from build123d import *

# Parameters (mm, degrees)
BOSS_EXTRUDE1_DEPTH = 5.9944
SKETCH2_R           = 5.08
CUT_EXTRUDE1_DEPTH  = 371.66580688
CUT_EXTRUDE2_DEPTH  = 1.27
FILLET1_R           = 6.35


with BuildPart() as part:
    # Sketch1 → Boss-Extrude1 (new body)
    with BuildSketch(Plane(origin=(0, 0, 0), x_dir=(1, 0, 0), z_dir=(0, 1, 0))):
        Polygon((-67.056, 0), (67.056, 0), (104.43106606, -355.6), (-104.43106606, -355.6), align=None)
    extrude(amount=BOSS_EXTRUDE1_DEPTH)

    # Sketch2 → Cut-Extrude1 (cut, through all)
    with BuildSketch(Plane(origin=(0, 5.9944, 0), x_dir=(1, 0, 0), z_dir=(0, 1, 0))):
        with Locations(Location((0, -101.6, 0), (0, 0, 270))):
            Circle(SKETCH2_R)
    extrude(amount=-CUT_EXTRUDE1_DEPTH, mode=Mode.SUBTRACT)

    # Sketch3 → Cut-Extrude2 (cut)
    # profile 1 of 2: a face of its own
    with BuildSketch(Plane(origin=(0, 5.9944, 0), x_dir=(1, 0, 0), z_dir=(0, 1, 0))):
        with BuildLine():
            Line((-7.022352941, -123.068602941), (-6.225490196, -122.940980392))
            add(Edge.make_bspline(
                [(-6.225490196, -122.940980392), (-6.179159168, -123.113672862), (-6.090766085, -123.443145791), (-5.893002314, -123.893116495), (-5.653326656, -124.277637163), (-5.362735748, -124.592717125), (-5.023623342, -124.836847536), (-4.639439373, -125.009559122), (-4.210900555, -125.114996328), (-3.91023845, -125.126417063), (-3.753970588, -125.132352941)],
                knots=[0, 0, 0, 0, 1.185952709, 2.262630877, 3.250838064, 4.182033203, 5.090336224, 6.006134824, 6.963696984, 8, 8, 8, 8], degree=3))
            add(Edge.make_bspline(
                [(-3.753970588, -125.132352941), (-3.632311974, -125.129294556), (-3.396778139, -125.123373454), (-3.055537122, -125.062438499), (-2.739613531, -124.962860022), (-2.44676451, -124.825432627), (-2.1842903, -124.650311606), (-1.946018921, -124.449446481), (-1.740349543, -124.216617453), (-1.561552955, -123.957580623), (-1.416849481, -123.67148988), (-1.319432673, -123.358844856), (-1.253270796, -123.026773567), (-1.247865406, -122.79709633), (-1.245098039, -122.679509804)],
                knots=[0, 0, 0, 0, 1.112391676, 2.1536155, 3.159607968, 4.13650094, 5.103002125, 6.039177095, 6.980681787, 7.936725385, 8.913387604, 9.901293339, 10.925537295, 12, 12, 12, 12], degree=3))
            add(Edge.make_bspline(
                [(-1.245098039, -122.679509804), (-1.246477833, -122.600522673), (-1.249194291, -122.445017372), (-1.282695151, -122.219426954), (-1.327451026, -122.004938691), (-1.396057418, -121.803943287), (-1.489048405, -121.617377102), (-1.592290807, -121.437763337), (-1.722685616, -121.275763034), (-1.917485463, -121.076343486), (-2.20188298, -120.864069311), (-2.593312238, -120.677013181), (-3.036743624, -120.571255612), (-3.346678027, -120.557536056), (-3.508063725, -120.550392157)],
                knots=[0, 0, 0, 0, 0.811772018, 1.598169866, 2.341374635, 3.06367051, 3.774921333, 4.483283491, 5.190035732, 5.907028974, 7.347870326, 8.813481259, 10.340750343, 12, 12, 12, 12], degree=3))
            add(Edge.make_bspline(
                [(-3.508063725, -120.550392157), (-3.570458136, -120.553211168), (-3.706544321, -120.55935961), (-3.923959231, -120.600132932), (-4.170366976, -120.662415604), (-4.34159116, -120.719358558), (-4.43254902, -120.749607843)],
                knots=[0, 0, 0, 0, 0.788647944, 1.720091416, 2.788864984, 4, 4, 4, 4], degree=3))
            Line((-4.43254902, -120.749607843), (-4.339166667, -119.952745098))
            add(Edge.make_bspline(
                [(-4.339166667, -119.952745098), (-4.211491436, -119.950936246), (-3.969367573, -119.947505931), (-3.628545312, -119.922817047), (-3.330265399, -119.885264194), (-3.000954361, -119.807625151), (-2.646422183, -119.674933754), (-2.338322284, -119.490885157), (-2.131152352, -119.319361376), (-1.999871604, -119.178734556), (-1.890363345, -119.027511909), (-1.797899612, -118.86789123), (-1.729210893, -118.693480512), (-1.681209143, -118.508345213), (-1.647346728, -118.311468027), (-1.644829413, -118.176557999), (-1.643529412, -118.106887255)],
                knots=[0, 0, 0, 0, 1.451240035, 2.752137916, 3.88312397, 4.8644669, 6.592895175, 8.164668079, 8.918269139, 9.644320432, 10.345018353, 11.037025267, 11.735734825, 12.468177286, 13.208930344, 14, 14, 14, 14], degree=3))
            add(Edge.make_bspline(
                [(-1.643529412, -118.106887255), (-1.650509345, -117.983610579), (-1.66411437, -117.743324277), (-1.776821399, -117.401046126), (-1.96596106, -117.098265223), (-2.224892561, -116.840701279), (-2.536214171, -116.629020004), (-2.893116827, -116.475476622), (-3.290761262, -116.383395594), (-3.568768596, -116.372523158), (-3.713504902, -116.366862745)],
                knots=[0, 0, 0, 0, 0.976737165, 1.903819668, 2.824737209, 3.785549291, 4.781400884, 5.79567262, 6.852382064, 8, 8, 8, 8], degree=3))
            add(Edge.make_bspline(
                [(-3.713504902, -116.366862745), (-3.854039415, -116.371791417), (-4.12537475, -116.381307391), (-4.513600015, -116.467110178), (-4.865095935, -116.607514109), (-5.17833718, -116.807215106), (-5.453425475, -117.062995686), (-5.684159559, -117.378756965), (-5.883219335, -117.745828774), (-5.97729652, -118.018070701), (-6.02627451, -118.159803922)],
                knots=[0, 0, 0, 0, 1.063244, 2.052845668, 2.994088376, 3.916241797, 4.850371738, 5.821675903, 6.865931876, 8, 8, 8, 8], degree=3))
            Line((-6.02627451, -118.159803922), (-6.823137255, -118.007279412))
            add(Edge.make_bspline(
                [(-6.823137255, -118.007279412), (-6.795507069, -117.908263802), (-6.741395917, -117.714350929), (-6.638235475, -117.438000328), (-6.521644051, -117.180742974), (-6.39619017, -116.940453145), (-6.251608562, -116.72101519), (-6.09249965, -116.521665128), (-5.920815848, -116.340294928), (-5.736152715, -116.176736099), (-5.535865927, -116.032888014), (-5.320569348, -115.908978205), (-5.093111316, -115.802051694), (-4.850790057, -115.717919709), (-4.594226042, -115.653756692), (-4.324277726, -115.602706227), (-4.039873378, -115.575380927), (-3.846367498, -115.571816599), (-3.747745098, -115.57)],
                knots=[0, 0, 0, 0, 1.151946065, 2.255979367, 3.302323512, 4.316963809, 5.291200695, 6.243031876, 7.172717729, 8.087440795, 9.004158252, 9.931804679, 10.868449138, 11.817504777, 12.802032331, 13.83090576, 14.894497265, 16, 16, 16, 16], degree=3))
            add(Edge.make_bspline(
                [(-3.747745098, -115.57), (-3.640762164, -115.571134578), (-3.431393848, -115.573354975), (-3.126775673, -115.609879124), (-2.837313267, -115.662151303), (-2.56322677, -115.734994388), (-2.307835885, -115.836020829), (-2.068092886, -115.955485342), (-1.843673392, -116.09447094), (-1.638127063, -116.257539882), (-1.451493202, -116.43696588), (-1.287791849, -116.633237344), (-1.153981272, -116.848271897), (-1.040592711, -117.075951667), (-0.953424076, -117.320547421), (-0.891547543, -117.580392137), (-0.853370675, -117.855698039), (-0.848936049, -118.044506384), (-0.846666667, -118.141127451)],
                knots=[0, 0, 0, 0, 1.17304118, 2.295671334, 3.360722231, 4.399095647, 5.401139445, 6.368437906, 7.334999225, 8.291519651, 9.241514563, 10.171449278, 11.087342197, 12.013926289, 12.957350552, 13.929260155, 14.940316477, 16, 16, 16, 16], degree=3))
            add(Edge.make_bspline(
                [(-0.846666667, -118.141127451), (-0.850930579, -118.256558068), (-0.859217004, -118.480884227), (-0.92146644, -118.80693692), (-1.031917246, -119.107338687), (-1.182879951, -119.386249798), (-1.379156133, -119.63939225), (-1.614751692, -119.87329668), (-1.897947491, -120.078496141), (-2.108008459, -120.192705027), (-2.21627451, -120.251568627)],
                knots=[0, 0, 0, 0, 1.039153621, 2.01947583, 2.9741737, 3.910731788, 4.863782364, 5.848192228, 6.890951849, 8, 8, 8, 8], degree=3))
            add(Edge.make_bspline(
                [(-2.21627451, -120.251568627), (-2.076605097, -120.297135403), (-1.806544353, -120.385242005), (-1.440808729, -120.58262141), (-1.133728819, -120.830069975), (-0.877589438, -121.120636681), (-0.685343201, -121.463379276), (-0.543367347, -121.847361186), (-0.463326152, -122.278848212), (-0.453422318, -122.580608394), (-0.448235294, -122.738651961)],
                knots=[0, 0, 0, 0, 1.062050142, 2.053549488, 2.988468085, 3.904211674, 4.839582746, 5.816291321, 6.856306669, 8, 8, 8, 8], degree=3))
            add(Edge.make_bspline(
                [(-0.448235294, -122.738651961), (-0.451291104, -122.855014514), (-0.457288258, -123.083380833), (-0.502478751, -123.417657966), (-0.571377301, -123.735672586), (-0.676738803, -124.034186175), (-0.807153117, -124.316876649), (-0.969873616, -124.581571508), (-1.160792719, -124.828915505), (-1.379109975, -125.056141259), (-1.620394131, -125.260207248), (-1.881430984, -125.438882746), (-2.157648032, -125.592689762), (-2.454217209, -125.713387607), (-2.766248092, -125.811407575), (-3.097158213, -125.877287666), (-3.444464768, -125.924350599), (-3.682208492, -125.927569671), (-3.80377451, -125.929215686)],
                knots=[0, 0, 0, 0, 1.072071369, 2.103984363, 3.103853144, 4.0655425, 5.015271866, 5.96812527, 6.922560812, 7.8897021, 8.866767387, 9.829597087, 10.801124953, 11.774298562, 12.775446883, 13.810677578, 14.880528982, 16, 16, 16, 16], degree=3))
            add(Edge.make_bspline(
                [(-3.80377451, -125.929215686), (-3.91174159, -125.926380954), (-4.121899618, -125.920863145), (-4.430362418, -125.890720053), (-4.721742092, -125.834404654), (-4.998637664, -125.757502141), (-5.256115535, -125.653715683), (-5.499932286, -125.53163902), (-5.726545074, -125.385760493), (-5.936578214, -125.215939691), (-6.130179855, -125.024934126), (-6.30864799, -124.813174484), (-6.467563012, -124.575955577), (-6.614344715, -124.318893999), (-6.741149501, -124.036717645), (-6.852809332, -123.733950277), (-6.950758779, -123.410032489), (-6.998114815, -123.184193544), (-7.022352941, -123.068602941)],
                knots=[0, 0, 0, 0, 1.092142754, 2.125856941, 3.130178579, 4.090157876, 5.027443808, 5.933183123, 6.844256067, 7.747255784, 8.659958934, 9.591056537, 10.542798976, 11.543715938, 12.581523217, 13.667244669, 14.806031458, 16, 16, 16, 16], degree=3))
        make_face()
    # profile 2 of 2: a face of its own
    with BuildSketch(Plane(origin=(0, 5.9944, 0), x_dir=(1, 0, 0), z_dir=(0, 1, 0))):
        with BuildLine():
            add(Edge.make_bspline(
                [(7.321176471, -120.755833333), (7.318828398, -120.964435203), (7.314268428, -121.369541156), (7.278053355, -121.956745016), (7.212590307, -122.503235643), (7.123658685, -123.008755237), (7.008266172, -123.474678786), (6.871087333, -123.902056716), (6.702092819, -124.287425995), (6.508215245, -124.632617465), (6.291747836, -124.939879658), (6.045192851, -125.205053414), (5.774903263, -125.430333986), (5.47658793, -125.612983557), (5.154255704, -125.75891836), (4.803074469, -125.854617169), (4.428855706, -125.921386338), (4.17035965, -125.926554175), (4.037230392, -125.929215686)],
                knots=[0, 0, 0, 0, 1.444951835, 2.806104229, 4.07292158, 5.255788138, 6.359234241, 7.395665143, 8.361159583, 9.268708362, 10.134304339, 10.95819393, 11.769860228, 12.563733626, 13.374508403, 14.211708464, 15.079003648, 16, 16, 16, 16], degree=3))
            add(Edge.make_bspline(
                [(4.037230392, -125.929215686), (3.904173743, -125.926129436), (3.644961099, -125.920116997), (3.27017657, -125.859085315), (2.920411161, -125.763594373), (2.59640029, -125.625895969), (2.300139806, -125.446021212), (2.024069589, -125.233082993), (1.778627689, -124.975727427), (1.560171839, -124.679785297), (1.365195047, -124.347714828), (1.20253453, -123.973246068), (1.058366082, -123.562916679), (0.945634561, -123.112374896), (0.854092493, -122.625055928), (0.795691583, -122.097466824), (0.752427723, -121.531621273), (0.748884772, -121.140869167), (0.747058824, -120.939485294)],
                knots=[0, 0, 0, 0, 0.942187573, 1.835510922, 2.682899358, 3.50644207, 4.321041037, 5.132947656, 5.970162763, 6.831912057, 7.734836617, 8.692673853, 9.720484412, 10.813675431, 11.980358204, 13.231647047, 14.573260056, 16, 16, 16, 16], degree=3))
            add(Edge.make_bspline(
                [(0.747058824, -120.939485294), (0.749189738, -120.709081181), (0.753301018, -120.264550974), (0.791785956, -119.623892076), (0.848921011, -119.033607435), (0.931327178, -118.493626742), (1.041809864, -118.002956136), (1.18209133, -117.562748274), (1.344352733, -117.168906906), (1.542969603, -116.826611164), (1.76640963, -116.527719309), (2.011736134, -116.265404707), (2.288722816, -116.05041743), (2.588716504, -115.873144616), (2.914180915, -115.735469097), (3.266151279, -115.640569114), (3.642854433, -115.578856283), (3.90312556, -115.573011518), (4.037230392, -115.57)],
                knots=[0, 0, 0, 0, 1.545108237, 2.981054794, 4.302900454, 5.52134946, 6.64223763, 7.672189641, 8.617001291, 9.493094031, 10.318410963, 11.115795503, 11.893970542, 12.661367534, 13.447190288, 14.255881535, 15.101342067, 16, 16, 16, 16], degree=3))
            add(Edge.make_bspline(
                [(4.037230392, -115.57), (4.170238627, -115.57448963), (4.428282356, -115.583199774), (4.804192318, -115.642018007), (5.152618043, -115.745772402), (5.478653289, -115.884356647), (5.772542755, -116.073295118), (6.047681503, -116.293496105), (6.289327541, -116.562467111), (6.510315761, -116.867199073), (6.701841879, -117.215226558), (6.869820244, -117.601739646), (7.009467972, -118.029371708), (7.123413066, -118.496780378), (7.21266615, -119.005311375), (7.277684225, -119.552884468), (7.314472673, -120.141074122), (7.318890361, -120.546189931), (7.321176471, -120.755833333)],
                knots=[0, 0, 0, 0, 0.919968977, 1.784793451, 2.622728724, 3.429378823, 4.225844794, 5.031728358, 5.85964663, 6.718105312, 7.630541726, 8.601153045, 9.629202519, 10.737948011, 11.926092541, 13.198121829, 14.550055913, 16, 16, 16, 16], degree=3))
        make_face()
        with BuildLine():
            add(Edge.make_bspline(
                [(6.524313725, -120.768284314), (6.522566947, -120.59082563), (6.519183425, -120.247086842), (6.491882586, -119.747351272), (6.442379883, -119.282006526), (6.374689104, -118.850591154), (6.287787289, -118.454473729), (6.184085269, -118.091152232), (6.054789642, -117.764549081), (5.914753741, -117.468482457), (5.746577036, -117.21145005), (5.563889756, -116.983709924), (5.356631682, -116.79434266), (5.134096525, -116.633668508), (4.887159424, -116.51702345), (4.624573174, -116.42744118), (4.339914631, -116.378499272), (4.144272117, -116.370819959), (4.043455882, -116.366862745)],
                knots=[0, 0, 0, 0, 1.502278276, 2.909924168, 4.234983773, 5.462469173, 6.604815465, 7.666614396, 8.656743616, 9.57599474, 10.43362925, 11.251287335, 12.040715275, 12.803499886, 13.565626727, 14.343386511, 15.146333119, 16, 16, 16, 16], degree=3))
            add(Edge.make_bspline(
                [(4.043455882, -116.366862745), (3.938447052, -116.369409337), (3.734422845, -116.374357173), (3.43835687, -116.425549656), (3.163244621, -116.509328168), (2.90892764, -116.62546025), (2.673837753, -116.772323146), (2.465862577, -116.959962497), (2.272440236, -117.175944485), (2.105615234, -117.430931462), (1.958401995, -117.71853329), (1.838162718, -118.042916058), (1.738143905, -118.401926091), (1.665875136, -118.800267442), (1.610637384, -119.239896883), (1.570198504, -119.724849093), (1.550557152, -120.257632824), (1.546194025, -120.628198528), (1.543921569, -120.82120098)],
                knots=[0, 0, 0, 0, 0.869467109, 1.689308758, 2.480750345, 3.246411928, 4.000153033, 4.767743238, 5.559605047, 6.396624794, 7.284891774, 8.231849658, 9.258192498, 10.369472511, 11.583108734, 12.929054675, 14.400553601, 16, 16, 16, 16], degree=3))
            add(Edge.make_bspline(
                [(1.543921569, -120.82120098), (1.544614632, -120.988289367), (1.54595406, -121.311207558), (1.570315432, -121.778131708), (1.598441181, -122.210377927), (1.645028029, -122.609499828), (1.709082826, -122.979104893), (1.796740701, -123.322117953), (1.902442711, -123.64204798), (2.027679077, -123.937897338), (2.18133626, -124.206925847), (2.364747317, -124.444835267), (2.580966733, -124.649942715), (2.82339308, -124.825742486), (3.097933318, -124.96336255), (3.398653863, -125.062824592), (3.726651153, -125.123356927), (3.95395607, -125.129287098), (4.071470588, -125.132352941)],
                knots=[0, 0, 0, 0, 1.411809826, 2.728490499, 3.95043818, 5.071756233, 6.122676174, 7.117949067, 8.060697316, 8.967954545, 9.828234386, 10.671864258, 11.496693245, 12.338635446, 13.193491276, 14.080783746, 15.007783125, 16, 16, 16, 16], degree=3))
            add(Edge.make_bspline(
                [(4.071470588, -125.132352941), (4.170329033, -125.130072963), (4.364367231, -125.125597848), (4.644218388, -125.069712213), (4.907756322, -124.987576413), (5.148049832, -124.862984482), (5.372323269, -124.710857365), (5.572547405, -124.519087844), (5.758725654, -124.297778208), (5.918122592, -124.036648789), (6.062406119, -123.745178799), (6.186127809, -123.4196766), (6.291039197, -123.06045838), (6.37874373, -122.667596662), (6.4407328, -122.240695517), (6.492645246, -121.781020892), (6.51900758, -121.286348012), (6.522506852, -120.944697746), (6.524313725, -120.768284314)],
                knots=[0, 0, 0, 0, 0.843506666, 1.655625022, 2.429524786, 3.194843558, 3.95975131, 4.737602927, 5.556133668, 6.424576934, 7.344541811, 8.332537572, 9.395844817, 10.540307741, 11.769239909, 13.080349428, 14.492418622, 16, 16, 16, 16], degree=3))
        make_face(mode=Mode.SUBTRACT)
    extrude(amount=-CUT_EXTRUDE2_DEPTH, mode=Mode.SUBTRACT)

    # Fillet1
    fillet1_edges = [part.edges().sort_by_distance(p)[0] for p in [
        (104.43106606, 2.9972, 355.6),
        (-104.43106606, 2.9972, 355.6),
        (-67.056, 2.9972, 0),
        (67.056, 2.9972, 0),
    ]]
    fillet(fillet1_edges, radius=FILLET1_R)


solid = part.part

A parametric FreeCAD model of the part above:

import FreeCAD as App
import Part
import Sketcher
from FreeCAD import Vector
Q = App.Units.Quantity


def edges_at(feature, points):
    """Names of the edges that pass closest to the given points."""
    edges = feature.Shape.Edges
    near = lambda p: min(range(len(edges)), key=lambda i: edges[i].distToShape(Part.Vertex(*p))[0])
    return sorted({f"Edge{near(p) + 1}" for p in points})

doc = App.newDocument("Part")
body = doc.addObject("PartDesign::Body", "Body")

# Sketch on XZ plane
sketch1 = body.newObject("Sketcher::SketchObject", "Sketch")
sketch1.AttachmentSupport = (doc.getObject("XZ_Plane"), [""])
sketch1.MapMode = "FlatFace"
sketch1.addGeometry(Part.LineSegment(Vector(67.056, 0, 0), Vector(-67.056, 0, 0)), False)
sketch1.addGeometry(Part.LineSegment(Vector(-67.056, 0, 0), Vector(-104.431066, 355.6, 0)), False)
sketch1.addGeometry(Part.LineSegment(Vector(-104.431066, 355.6, 0), Vector(104.431066, 355.6, 0)), False)
sketch1.addGeometry(Part.LineSegment(Vector(104.431066, 355.6, 0), Vector(67.056, 0, 0)), False)
sketch1.addConstraint(Sketcher.Constraint("Coincident", 0, 2, 1, 1))
sketch1.addConstraint(Sketcher.Constraint("Coincident", 1, 2, 2, 1))
sketch1.addConstraint(Sketcher.Constraint("Coincident", 2, 2, 3, 1))
sketch1.addConstraint(Sketcher.Constraint("Coincident", 3, 2, 0, 1))
sketch1.addConstraint(Sketcher.Constraint("Horizontal", 0))
sketch1.addConstraint(Sketcher.Constraint("Horizontal", 2))
sketch1.addConstraint(Sketcher.Constraint("Symmetric", 0, 2, 3, 2, -1, 1))
sketch1.addConstraint(Sketcher.Constraint("Equal", 1, 3))
sketch1.addConstraint(Sketcher.Constraint("DistanceY", -1, 1, 1, 2, Q("14 in")))
sketch1.addConstraint(Sketcher.Constraint("Angle", 1, Q("96 deg")))
sketch1.addConstraint(Sketcher.Constraint("DistanceX", 0, 2, 0, 1, Q("5.28 in")))
pad1 = body.newObject("PartDesign::Pad", "Pad")
pad1.Profile = sketch1
pad1.Length = Q("0.236 in")
pad1.Reversed = True

# Sketch on XZ plane
sketch2 = body.newObject("Sketcher::SketchObject", "Sketch001")
sketch2.AttachmentSupport = (doc.getObject("XZ_Plane"), [""])
sketch2.MapMode = "FlatFace"
sketch2.AttachmentOffset = App.Placement(Vector(0, 0, -0.236 * 25.4), App.Rotation())
sketch2.addGeometry(Part.Circle(Vector(0, 101.6, 0), Vector(0, 0, 1), 5.08), False)
sketch2.addConstraint(Sketcher.Constraint("PointOnObject", 0, 3, -2))
sketch2.addConstraint(Sketcher.Constraint("Diameter", 0, Q("0.4 in")))
sketch2.addConstraint(Sketcher.Constraint("DistanceY", -1, 1, 0, 3, Q("4 in")))
pocket1 = body.newObject("PartDesign::Pocket", "Pocket")
pocket1.Profile = sketch2
pocket1.Type = "ThroughAll"
pocket1.Reversed = True

# Sketch on XZ plane
sketch3 = body.newObject("Sketcher::SketchObject", "Sketch002")
sketch3.AttachmentSupport = (doc.getObject("XZ_Plane"), [""])
sketch3.MapMode = "FlatFace"
sketch3.AttachmentOffset = App.Placement(Vector(0, 0, -0.236 * 25.4), App.Rotation())
sketch3.addGeometry(Part.LineSegment(Vector(-6.22549, 122.94098, 0), Vector(-7.022353, 123.068603, 0)), False)
sketch3.addGeometry(Part.BSplineCurve([Vector(-3.803775, 125.929216, 0), Vector(-3.911742, 125.926381, 0), Vector(-4.1219, 125.920863, 0), Vector(-4.430362, 125.89072, 0), Vector(-4.721742, 125.834405, 0), Vector(-4.998638, 125.757502, 0), Vector(-5.256116, 125.653716, 0), Vector(-5.499932, 125.531639, 0), Vector(-5.726545, 125.38576, 0), Vector(-5.936578, 125.21594, 0), Vector(-6.13018, 125.024934, 0), Vector(-6.308648, 124.813174, 0), Vector(-6.467563, 124.575956, 0), Vector(-6.614345, 124.318894, 0), Vector(-6.74115, 124.036718, 0), Vector(-6.852809, 123.73395, 0), Vector(-6.950759, 123.410032, 0), Vector(-6.998115, 123.184194, 0), Vector(-7.022353, 123.068603, 0)], [4, 1, 1, 1, 1, 1, 1, 1, 1, 1, 1, 1, 1, 1, 1, 1, 4], [0, 1.092142754, 2.125856941, 3.130178579, 4.090157876, 5.027443808, 5.933183123, 6.844256067, 7.747255784, 8.659958934, 9.591056537, 10.542798976, 11.543715938, 12.581523217, 13.667244669, 14.806031458, 16], False, 3, [1, 1, 1, 1, 1, 1, 1, 1, 1, 1, 1, 1, 1, 1, 1, 1, 1, 1, 1], False), False)
sketch3.addGeometry(Part.BSplineCurve([Vector(-0.448235, 122.738652, 0), Vector(-0.451291, 122.855015, 0), Vector(-0.457288, 123.083381, 0), Vector(-0.502479, 123.417658, 0), Vector(-0.571377, 123.735673, 0), Vector(-0.676739, 124.034186, 0), Vector(-0.807153, 124.316877, 0), Vector(-0.969874, 124.581572, 0), Vector(-1.160793, 124.828916, 0), Vector(-1.37911, 125.056141, 0), Vector(-1.620394, 125.260207, 0), Vector(-1.881431, 125.438883, 0), Vector(-2.157648, 125.59269, 0), Vector(-2.454217, 125.713388, 0), Vector(-2.766248, 125.811408, 0), Vector(-3.097158, 125.877288, 0), Vector(-3.444465, 125.924351, 0), Vector(-3.682208, 125.92757, 0), Vector(-3.803775, 125.929216, 0)], [4, 1, 1, 1, 1, 1, 1, 1, 1, 1, 1, 1, 1, 1, 1, 1, 4], [0, 1.072071369, 2.103984363, 3.103853144, 4.0655425, 5.015271866, 5.96812527, 6.922560812, 7.8897021, 8.866767387, 9.829597087, 10.801124953, 11.774298562, 12.775446883, 13.810677578, 14.880528982, 16], False, 3, [1, 1, 1, 1, 1, 1, 1, 1, 1, 1, 1, 1, 1, 1, 1, 1, 1, 1, 1], False), False)
sketch3.addGeometry(Part.BSplineCurve([Vector(-2.216275, 120.251569, 0), Vector(-2.076605, 120.297135, 0), Vector(-1.806544, 120.385242, 0), Vector(-1.440809, 120.582621, 0), Vector(-1.133729, 120.83007, 0), Vector(-0.877589, 121.120637, 0), Vector(-0.685343, 121.463379, 0), Vector(-0.543367, 121.847361, 0), Vector(-0.463326, 122.278848, 0), Vector(-0.453422, 122.580608, 0), Vector(-0.448235, 122.738652, 0)], [4, 1, 1, 1, 1, 1, 1, 1, 4], [0, 1.062050142, 2.053549488, 2.988468085, 3.904211674, 4.839582746, 5.816291321, 6.856306669, 8], False, 3, [1, 1, 1, 1, 1, 1, 1, 1, 1, 1, 1], False), False)
sketch3.addGeometry(Part.BSplineCurve([Vector(-0.846667, 118.141127, 0), Vector(-0.850931, 118.256558, 0), Vector(-0.859217, 118.480884, 0), Vector(-0.921466, 118.806937, 0), Vector(-1.031917, 119.107339, 0), Vector(-1.18288, 119.38625, 0), Vector(-1.379156, 119.639392, 0), Vector(-1.614752, 119.873297, 0), Vector(-1.897947, 120.078496, 0), Vector(-2.108008, 120.192705, 0), Vector(-2.216275, 120.251569, 0)], [4, 1, 1, 1, 1, 1, 1, 1, 4], [0, 1.039153621, 2.01947583, 2.9741737, 3.910731788, 4.863782364, 5.848192228, 6.890951849, 8], False, 3, [1, 1, 1, 1, 1, 1, 1, 1, 1, 1, 1], False), False)
sketch3.addGeometry(Part.BSplineCurve([Vector(-3.747745, 115.57, 0), Vector(-3.640762, 115.571135, 0), Vector(-3.431394, 115.573355, 0), Vector(-3.126776, 115.609879, 0), Vector(-2.837313, 115.662151, 0), Vector(-2.563227, 115.734994, 0), Vector(-2.307836, 115.836021, 0), Vector(-2.068093, 115.955485, 0), Vector(-1.843673, 116.094471, 0), Vector(-1.638127, 116.25754, 0), Vector(-1.451493, 116.436966, 0), Vector(-1.287792, 116.633237, 0), Vector(-1.153981, 116.848272, 0), Vector(-1.040593, 117.075952, 0), Vector(-0.953424, 117.320547, 0), Vector(-0.891548, 117.580392, 0), Vector(-0.853371, 117.855698, 0), Vector(-0.848936, 118.044506, 0), Vector(-0.846667, 118.141127, 0)], [4, 1, 1, 1, 1, 1, 1, 1, 1, 1, 1, 1, 1, 1, 1, 1, 4], [0, 1.17304118, 2.295671334, 3.360722231, 4.399095647, 5.401139445, 6.368437906, 7.334999225, 8.291519651, 9.241514563, 10.171449278, 11.087342197, 12.013926289, 12.957350552, 13.929260155, 14.940316477, 16], False, 3, [1, 1, 1, 1, 1, 1, 1, 1, 1, 1, 1, 1, 1, 1, 1, 1, 1, 1, 1], False), False)
sketch3.addGeometry(Part.BSplineCurve([Vector(-6.823137, 118.007279, 0), Vector(-6.795507, 117.908264, 0), Vector(-6.741396, 117.714351, 0), Vector(-6.638235, 117.438, 0), Vector(-6.521644, 117.180743, 0), Vector(-6.39619, 116.940453, 0), Vector(-6.251609, 116.721015, 0), Vector(-6.0925, 116.521665, 0), Vector(-5.920816, 116.340295, 0), Vector(-5.736153, 116.176736, 0), Vector(-5.535866, 116.032888, 0), Vector(-5.320569, 115.908978, 0), Vector(-5.093111, 115.802052, 0), Vector(-4.85079, 115.71792, 0), Vector(-4.594226, 115.653757, 0), Vector(-4.324278, 115.602706, 0), Vector(-4.039873, 115.575381, 0), Vector(-3.846367, 115.571817, 0), Vector(-3.747745, 115.57, 0)], [4, 1, 1, 1, 1, 1, 1, 1, 1, 1, 1, 1, 1, 1, 1, 1, 4], [0, 1.151946065, 2.255979367, 3.302323512, 4.316963809, 5.291200695, 6.243031876, 7.172717729, 8.087440795, 9.004158252, 9.931804679, 10.868449138, 11.817504777, 12.802032331, 13.83090576, 14.894497265, 16], False, 3, [1, 1, 1, 1, 1, 1, 1, 1, 1, 1, 1, 1, 1, 1, 1, 1, 1, 1, 1], False), False)
sketch3.addGeometry(Part.LineSegment(Vector(-6.823137, 118.007279, 0), Vector(-6.026275, 118.159804, 0)), False)
sketch3.addGeometry(Part.BSplineCurve([Vector(-3.713505, 116.366863, 0), Vector(-3.854039, 116.371791, 0), Vector(-4.125375, 116.381307, 0), Vector(-4.5136, 116.46711, 0), Vector(-4.865096, 116.607514, 0), Vector(-5.178337, 116.807215, 0), Vector(-5.453425, 117.062996, 0), Vector(-5.68416, 117.378757, 0), Vector(-5.883219, 117.745829, 0), Vector(-5.977297, 118.018071, 0), Vector(-6.026275, 118.159804, 0)], [4, 1, 1, 1, 1, 1, 1, 1, 4], [0, 1.063244, 2.052845668, 2.994088376, 3.916241797, 4.850371738, 5.821675903, 6.865931876, 8], False, 3, [1, 1, 1, 1, 1, 1, 1, 1, 1, 1, 1], False), False)
sketch3.addGeometry(Part.BSplineCurve([Vector(-1.643529, 118.106887, 0), Vector(-1.650509, 117.983611, 0), Vector(-1.664114, 117.743324, 0), Vector(-1.776821, 117.401046, 0), Vector(-1.965961, 117.098265, 0), Vector(-2.224893, 116.840701, 0), Vector(-2.536214, 116.62902, 0), Vector(-2.893117, 116.475477, 0), Vector(-3.290761, 116.383396, 0), Vector(-3.568769, 116.372523, 0), Vector(-3.713505, 116.366863, 0)], [4, 1, 1, 1, 1, 1, 1, 1, 4], [0, 0.976737165, 1.903819668, 2.824737209, 3.785549291, 4.781400884, 5.79567262, 6.852382064, 8], False, 3, [1, 1, 1, 1, 1, 1, 1, 1, 1, 1, 1], False), False)
sketch3.addGeometry(Part.BSplineCurve([Vector(-4.339167, 119.952745, 0), Vector(-4.211491, 119.950936, 0), Vector(-3.969368, 119.947506, 0), Vector(-3.628545, 119.922817, 0), Vector(-3.330265, 119.885264, 0), Vector(-3.000954, 119.807625, 0), Vector(-2.646422, 119.674934, 0), Vector(-2.338322, 119.490885, 0), Vector(-2.131152, 119.319361, 0), Vector(-1.999872, 119.178735, 0), Vector(-1.890363, 119.027512, 0), Vector(-1.7979, 118.867891, 0), Vector(-1.729211, 118.693481, 0), Vector(-1.681209, 118.508345, 0), Vector(-1.647347, 118.311468, 0), Vector(-1.644829, 118.176558, 0), Vector(-1.643529, 118.106887, 0)], [4, 1, 1, 1, 1, 1, 1, 1, 1, 1, 1, 1, 1, 1, 4], [0, 1.451240035, 2.752137916, 3.88312397, 4.8644669, 6.592895175, 8.164668079, 8.918269139, 9.644320432, 10.345018353, 11.037025267, 11.735734825, 12.468177286, 13.208930344, 14], False, 3, [1, 1, 1, 1, 1, 1, 1, 1, 1, 1, 1, 1, 1, 1, 1, 1, 1], False), False)
sketch3.addGeometry(Part.LineSegment(Vector(-4.339167, 119.952745, 0), Vector(-4.432549, 120.749608, 0)), False)
sketch3.addGeometry(Part.BSplineCurve([Vector(-3.508064, 120.550392, 0), Vector(-3.570458, 120.553211, 0), Vector(-3.706544, 120.55936, 0), Vector(-3.923959, 120.600133, 0), Vector(-4.170367, 120.662416, 0), Vector(-4.341591, 120.719359, 0), Vector(-4.432549, 120.749608, 0)], [4, 1, 1, 1, 4], [0, 0.788647944, 1.720091416, 2.788864984, 4], False, 3, [1, 1, 1, 1, 1, 1, 1], False), False)
sketch3.addGeometry(Part.BSplineCurve([Vector(-1.245098, 122.67951, 0), Vector(-1.246478, 122.600523, 0), Vector(-1.249194, 122.445017, 0), Vector(-1.282695, 122.219427, 0), Vector(-1.327451, 122.004939, 0), Vector(-1.396057, 121.803943, 0), Vector(-1.489048, 121.617377, 0), Vector(-1.592291, 121.437763, 0), Vector(-1.722686, 121.275763, 0), Vector(-1.917485, 121.076343, 0), Vector(-2.201883, 120.864069, 0), Vector(-2.593312, 120.677013, 0), Vector(-3.036744, 120.571256, 0), Vector(-3.346678, 120.557536, 0), Vector(-3.508064, 120.550392, 0)], [4, 1, 1, 1, 1, 1, 1, 1, 1, 1, 1, 1, 4], [0, 0.811772018, 1.598169866, 2.341374635, 3.06367051, 3.774921333, 4.483283491, 5.190035732, 5.907028974, 7.347870326, 8.813481259, 10.340750343, 12], False, 3, [1, 1, 1, 1, 1, 1, 1, 1, 1, 1, 1, 1, 1, 1, 1], False), False)
sketch3.addGeometry(Part.BSplineCurve([Vector(-3.753971, 125.132353, 0), Vector(-3.632312, 125.129295, 0), Vector(-3.396778, 125.123373, 0), Vector(-3.055537, 125.062438, 0), Vector(-2.739614, 124.96286, 0), Vector(-2.446765, 124.825433, 0), Vector(-2.18429, 124.650312, 0), Vector(-1.946019, 124.449446, 0), Vector(-1.74035, 124.216617, 0), Vector(-1.561553, 123.957581, 0), Vector(-1.416849, 123.67149, 0), Vector(-1.319433, 123.358845, 0), Vector(-1.253271, 123.026774, 0), Vector(-1.247865, 122.797096, 0), Vector(-1.245098, 122.67951, 0)], [4, 1, 1, 1, 1, 1, 1, 1, 1, 1, 1, 1, 4], [0, 1.112391676, 2.1536155, 3.159607968, 4.13650094, 5.103002125, 6.039177095, 6.980681787, 7.936725385, 8.913387604, 9.901293339, 10.925537295, 12], False, 3, [1, 1, 1, 1, 1, 1, 1, 1, 1, 1, 1, 1, 1, 1, 1], False), False)
sketch3.addGeometry(Part.BSplineCurve([Vector(-6.22549, 122.94098, 0), Vector(-6.179159, 123.113673, 0), Vector(-6.090766, 123.443146, 0), Vector(-5.893002, 123.893116, 0), Vector(-5.653327, 124.277637, 0), Vector(-5.362736, 124.592717, 0), Vector(-5.023623, 124.836848, 0), Vector(-4.639439, 125.009559, 0), Vector(-4.210901, 125.114996, 0), Vector(-3.910238, 125.126417, 0), Vector(-3.753971, 125.132353, 0)], [4, 1, 1, 1, 1, 1, 1, 1, 4], [0, 1.185952709, 2.262630877, 3.250838064, 4.182033203, 5.090336224, 6.006134824, 6.963696984, 8], False, 3, [1, 1, 1, 1, 1, 1, 1, 1, 1, 1, 1], False), False)
sketch3.addGeometry(Part.BSplineCurve([Vector(7.321176, 120.755833, 0), Vector(7.318828, 120.964435, 0), Vector(7.314268, 121.369541, 0), Vector(7.278053, 121.956745, 0), Vector(7.21259, 122.503236, 0), Vector(7.123659, 123.008755, 0), Vector(7.008266, 123.474679, 0), Vector(6.871087, 123.902057, 0), Vector(6.702093, 124.287426, 0), Vector(6.508215, 124.632617, 0), Vector(6.291748, 124.93988, 0), Vector(6.045193, 125.205053, 0), Vector(5.774903, 125.430334, 0), Vector(5.476588, 125.612984, 0), Vector(5.154256, 125.758918, 0), Vector(4.803074, 125.854617, 0), Vector(4.428856, 125.921386, 0), Vector(4.17036, 125.926554, 0), Vector(4.03723, 125.929216, 0)], [4, 1, 1, 1, 1, 1, 1, 1, 1, 1, 1, 1, 1, 1, 1, 1, 4], [0, 1.444951835, 2.806104229, 4.07292158, 5.255788138, 6.359234241, 7.395665143, 8.361159583, 9.268708362, 10.134304339, 10.95819393, 11.769860228, 12.563733626, 13.374508403, 14.211708464, 15.079003648, 16], False, 3, [1, 1, 1, 1, 1, 1, 1, 1, 1, 1, 1, 1, 1, 1, 1, 1, 1, 1, 1], False), False)
sketch3.addGeometry(Part.BSplineCurve([Vector(4.03723, 115.57, 0), Vector(4.170239, 115.57449, 0), Vector(4.428282, 115.5832, 0), Vector(4.804192, 115.642018, 0), Vector(5.152618, 115.745772, 0), Vector(5.478653, 115.884357, 0), Vector(5.772543, 116.073295, 0), Vector(6.047682, 116.293496, 0), Vector(6.289328, 116.562467, 0), Vector(6.510316, 116.867199, 0), Vector(6.701842, 117.215227, 0), Vector(6.86982, 117.60174, 0), Vector(7.009468, 118.029372, 0), Vector(7.123413, 118.49678, 0), Vector(7.212666, 119.005311, 0), Vector(7.277684, 119.552884, 0), Vector(7.314473, 120.141074, 0), Vector(7.31889, 120.54619, 0), Vector(7.321176, 120.755833, 0)], [4, 1, 1, 1, 1, 1, 1, 1, 1, 1, 1, 1, 1, 1, 1, 1, 4], [0, 0.919968977, 1.784793451, 2.622728724, 3.429378823, 4.225844794, 5.031728358, 5.85964663, 6.718105312, 7.630541726, 8.601153045, 9.629202519, 10.737948011, 11.926092541, 13.198121829, 14.550055913, 16], False, 3, [1, 1, 1, 1, 1, 1, 1, 1, 1, 1, 1, 1, 1, 1, 1, 1, 1, 1, 1], False), False)
sketch3.addGeometry(Part.BSplineCurve([Vector(0.747059, 120.939485, 0), Vector(0.74919, 120.709081, 0), Vector(0.753301, 120.264551, 0), Vector(0.791786, 119.623892, 0), Vector(0.848921, 119.033607, 0), Vector(0.931327, 118.493627, 0), Vector(1.04181, 118.002956, 0), Vector(1.182091, 117.562748, 0), Vector(1.344353, 117.168907, 0), Vector(1.54297, 116.826611, 0), Vector(1.76641, 116.527719, 0), Vector(2.011736, 116.265405, 0), Vector(2.288723, 116.050417, 0), Vector(2.588717, 115.873145, 0), Vector(2.914181, 115.735469, 0), Vector(3.266151, 115.640569, 0), Vector(3.642854, 115.578856, 0), Vector(3.903126, 115.573012, 0), Vector(4.03723, 115.57, 0)], [4, 1, 1, 1, 1, 1, 1, 1, 1, 1, 1, 1, 1, 1, 1, 1, 4], [0, 1.545108237, 2.981054794, 4.302900454, 5.52134946, 6.64223763, 7.672189641, 8.617001291, 9.493094031, 10.318410963, 11.115795503, 11.893970542, 12.661367534, 13.447190288, 14.255881535, 15.101342067, 16], False, 3, [1, 1, 1, 1, 1, 1, 1, 1, 1, 1, 1, 1, 1, 1, 1, 1, 1, 1, 1], False), False)
sketch3.addGeometry(Part.BSplineCurve([Vector(4.03723, 125.929216, 0), Vector(3.904174, 125.926129, 0), Vector(3.644961, 125.920117, 0), Vector(3.270177, 125.859085, 0), Vector(2.920411, 125.763594, 0), Vector(2.5964, 125.625896, 0), Vector(2.30014, 125.446021, 0), Vector(2.02407, 125.233083, 0), Vector(1.778628, 124.975727, 0), Vector(1.560172, 124.679785, 0), Vector(1.365195, 124.347715, 0), Vector(1.202535, 123.973246, 0), Vector(1.058366, 123.562917, 0), Vector(0.945635, 123.112375, 0), Vector(0.854092, 122.625056, 0), Vector(0.795692, 122.097467, 0), Vector(0.752428, 121.531621, 0), Vector(0.748885, 121.140869, 0), Vector(0.747059, 120.939485, 0)], [4, 1, 1, 1, 1, 1, 1, 1, 1, 1, 1, 1, 1, 1, 1, 1, 4], [0, 0.942187573, 1.835510922, 2.682899358, 3.50644207, 4.321041037, 5.132947656, 5.970162763, 6.831912057, 7.734836617, 8.692673853, 9.720484412, 10.813675431, 11.980358204, 13.231647047, 14.573260056, 16], False, 3, [1, 1, 1, 1, 1, 1, 1, 1, 1, 1, 1, 1, 1, 1, 1, 1, 1, 1, 1], False), False)
sketch3.addGeometry(Part.BSplineCurve([Vector(4.071471, 125.132353, 0), Vector(4.170329, 125.130073, 0), Vector(4.364367, 125.125598, 0), Vector(4.644218, 125.069712, 0), Vector(4.907756, 124.987576, 0), Vector(5.14805, 124.862984, 0), Vector(5.372323, 124.710857, 0), Vector(5.572547, 124.519088, 0), Vector(5.758726, 124.297778, 0), Vector(5.918123, 124.036649, 0), Vector(6.062406, 123.745179, 0), Vector(6.186128, 123.419677, 0), Vector(6.291039, 123.060458, 0), Vector(6.378744, 122.667597, 0), Vector(6.440733, 122.240696, 0), Vector(6.492645, 121.781021, 0), Vector(6.519008, 121.286348, 0), Vector(6.522507, 120.944698, 0), Vector(6.524314, 120.768284, 0)], [4, 1, 1, 1, 1, 1, 1, 1, 1, 1, 1, 1, 1, 1, 1, 1, 4], [0, 0.843506666, 1.655625022, 2.429524786, 3.194843558, 3.95975131, 4.737602927, 5.556133668, 6.424576934, 7.344541811, 8.332537572, 9.395844817, 10.540307741, 11.769239909, 13.080349428, 14.492418622, 16], False, 3, [1, 1, 1, 1, 1, 1, 1, 1, 1, 1, 1, 1, 1, 1, 1, 1, 1, 1, 1], False), False)
sketch3.addGeometry(Part.BSplineCurve([Vector(1.543922, 120.821201, 0), Vector(1.544615, 120.988289, 0), Vector(1.545954, 121.311208, 0), Vector(1.570315, 121.778132, 0), Vector(1.598441, 122.210378, 0), Vector(1.645028, 122.6095, 0), Vector(1.709083, 122.979105, 0), Vector(1.796741, 123.322118, 0), Vector(1.902443, 123.642048, 0), Vector(2.027679, 123.937897, 0), Vector(2.181336, 124.206926, 0), Vector(2.364747, 124.444835, 0), Vector(2.580967, 124.649943, 0), Vector(2.823393, 124.825742, 0), Vector(3.097933, 124.963363, 0), Vector(3.398654, 125.062825, 0), Vector(3.726651, 125.123357, 0), Vector(3.953956, 125.129287, 0), Vector(4.071471, 125.132353, 0)], [4, 1, 1, 1, 1, 1, 1, 1, 1, 1, 1, 1, 1, 1, 1, 1, 4], [0, 1.411809826, 2.728490499, 3.95043818, 5.071756233, 6.122676174, 7.117949067, 8.060697316, 8.967954545, 9.828234386, 10.671864258, 11.496693245, 12.338635446, 13.193491276, 14.080783746, 15.007783125, 16], False, 3, [1, 1, 1, 1, 1, 1, 1, 1, 1, 1, 1, 1, 1, 1, 1, 1, 1, 1, 1], False), False)
sketch3.addGeometry(Part.BSplineCurve([Vector(4.043456, 116.366863, 0), Vector(3.938447, 116.369409, 0), Vector(3.734423, 116.374357, 0), Vector(3.438357, 116.42555, 0), Vector(3.163245, 116.509328, 0), Vector(2.908928, 116.62546, 0), Vector(2.673838, 116.772323, 0), Vector(2.465863, 116.959962, 0), Vector(2.27244, 117.175944, 0), Vector(2.105615, 117.430931, 0), Vector(1.958402, 117.718533, 0), Vector(1.838163, 118.042916, 0), Vector(1.738144, 118.401926, 0), Vector(1.665875, 118.800267, 0), Vector(1.610637, 119.239897, 0), Vector(1.570199, 119.724849, 0), Vector(1.550557, 120.257633, 0), Vector(1.546194, 120.628199, 0), Vector(1.543922, 120.821201, 0)], [4, 1, 1, 1, 1, 1, 1, 1, 1, 1, 1, 1, 1, 1, 1, 1, 4], [0, 0.869467109, 1.689308758, 2.480750345, 3.246411928, 4.000153033, 4.767743238, 5.559605047, 6.396624794, 7.284891774, 8.231849658, 9.258192498, 10.369472511, 11.583108734, 12.929054675, 14.400553601, 16], False, 3, [1, 1, 1, 1, 1, 1, 1, 1, 1, 1, 1, 1, 1, 1, 1, 1, 1, 1, 1], False), False)
sketch3.addGeometry(Part.BSplineCurve([Vector(6.524314, 120.768284, 0), Vector(6.522567, 120.590826, 0), Vector(6.519183, 120.247087, 0), Vector(6.491883, 119.747351, 0), Vector(6.44238, 119.282007, 0), Vector(6.374689, 118.850591, 0), Vector(6.287787, 118.454474, 0), Vector(6.184085, 118.091152, 0), Vector(6.05479, 117.764549, 0), Vector(5.914754, 117.468482, 0), Vector(5.746577, 117.21145, 0), Vector(5.56389, 116.98371, 0), Vector(5.356632, 116.794343, 0), Vector(5.134097, 116.633669, 0), Vector(4.887159, 116.517023, 0), Vector(4.624573, 116.427441, 0), Vector(4.339915, 116.378499, 0), Vector(4.144272, 116.37082, 0), Vector(4.043456, 116.366863, 0)], [4, 1, 1, 1, 1, 1, 1, 1, 1, 1, 1, 1, 1, 1, 1, 1, 4], [0, 1.502278276, 2.909924168, 4.234983773, 5.462469173, 6.604815465, 7.666614396, 8.656743616, 9.57599474, 10.43362925, 11.251287335, 12.040715275, 12.803499886, 13.565626727, 14.343386511, 15.146333119, 16], False, 3, [1, 1, 1, 1, 1, 1, 1, 1, 1, 1, 1, 1, 1, 1, 1, 1, 1, 1, 1], False), False)
sketch3.addConstraint(Sketcher.Constraint("Block", 1))
sketch3.addConstraint(Sketcher.Constraint("Block", 2))
sketch3.addConstraint(Sketcher.Constraint("Block", 3))
sketch3.addConstraint(Sketcher.Constraint("Block", 4))
sketch3.addConstraint(Sketcher.Constraint("Block", 5))
sketch3.addConstraint(Sketcher.Constraint("Block", 6))
sketch3.addConstraint(Sketcher.Constraint("Block", 8))
sketch3.addConstraint(Sketcher.Constraint("Block", 9))
sketch3.addConstraint(Sketcher.Constraint("Block", 10))
sketch3.addConstraint(Sketcher.Constraint("Block", 12))
sketch3.addConstraint(Sketcher.Constraint("Block", 13))
sketch3.addConstraint(Sketcher.Constraint("Block", 14))
sketch3.addConstraint(Sketcher.Constraint("Block", 15))
sketch3.addConstraint(Sketcher.Constraint("Block", 16))
sketch3.addConstraint(Sketcher.Constraint("Block", 17))
sketch3.addConstraint(Sketcher.Constraint("Block", 18))
sketch3.addConstraint(Sketcher.Constraint("Block", 19))
sketch3.addConstraint(Sketcher.Constraint("Block", 20))
sketch3.addConstraint(Sketcher.Constraint("Block", 21))
sketch3.addConstraint(Sketcher.Constraint("Block", 22))
sketch3.addConstraint(Sketcher.Constraint("Block", 23))
sketch3.addConstraint(Sketcher.Constraint("Coincident", 0, 2, 1, 2))
sketch3.addConstraint(Sketcher.Constraint("Coincident", 6, 1, 7, 1))
sketch3.addConstraint(Sketcher.Constraint("Coincident", 7, 2, 8, 2))
sketch3.addConstraint(Sketcher.Constraint("Coincident", 10, 1, 11, 1))
sketch3.addConstraint(Sketcher.Constraint("Coincident", 11, 2, 12, 2))
sketch3.addConstraint(Sketcher.Constraint("Coincident", 15, 1, 0, 1))
pocket2 = body.newObject("PartDesign::Pocket", "Pocket001")
pocket2.Profile = sketch3
pocket2.Length = Q("0.05 in")
pocket2.Reversed = True
doc.recompute()

fillet = body.newObject("PartDesign::Fillet", "Fillet")
fillet.Base = (pocket2, edges_at(pocket2, [
    (104.431, 2.997, 355.6),
    (-104.431, 2.997, 355.6),
    (-67.056, 2.997, 0),
    (67.056, 2.997, 0),
]))
fillet.Radius = Q("0.25 in")

doc.recompute()
